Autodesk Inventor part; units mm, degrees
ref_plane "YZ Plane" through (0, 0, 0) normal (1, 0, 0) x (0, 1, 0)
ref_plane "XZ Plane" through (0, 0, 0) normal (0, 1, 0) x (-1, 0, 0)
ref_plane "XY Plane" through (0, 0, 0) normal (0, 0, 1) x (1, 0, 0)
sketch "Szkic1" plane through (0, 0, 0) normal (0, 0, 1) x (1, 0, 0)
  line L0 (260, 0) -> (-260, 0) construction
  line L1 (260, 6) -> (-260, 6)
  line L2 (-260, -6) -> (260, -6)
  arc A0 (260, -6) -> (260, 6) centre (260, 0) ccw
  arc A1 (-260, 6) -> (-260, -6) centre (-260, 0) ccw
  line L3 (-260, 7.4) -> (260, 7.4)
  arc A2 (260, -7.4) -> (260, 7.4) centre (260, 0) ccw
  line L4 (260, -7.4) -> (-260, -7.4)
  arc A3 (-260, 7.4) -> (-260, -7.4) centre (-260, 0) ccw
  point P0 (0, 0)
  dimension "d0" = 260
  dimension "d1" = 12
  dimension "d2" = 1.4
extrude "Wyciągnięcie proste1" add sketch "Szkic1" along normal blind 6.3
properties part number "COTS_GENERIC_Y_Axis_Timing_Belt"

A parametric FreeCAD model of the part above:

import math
import FreeCAD as App
import Part
import Sketcher

V = App.Vector
Q = App.Units.Quantity

doc = App.newDocument("Part")
params = doc.addObject("Spreadsheet::Sheet", "Params")
for row, (alias, value) in enumerate([
    ("sketch1_radius", "6 mm"),
    ("sketch1_radius2", "7.4 mm"),
    ("pad1_length", "6.3 mm"),
], start=1):
    params.set(f"A{row}", alias)
    params.set(f"B{row}", "=" + value)
    params.setAlias(f"B{row}", alias)

body = doc.addObject("PartDesign::Body", "Body")

# Sketch on XY plane
sketch1 = doc.addObject("Sketcher::SketchObject", "Sketch")
body.addObject(sketch1)
sketch1.AttachmentSupport = (doc.XY_Plane, [""])
sketch1.MapMode = "FlatFace"
sketch1.addGeometry([
    Part.LineSegment(V(260, 7, 0), V(-260, 7, 0)),  # 0
    Part.ArcOfCircle(Part.Circle(V(-260, 0, 0), V(0, 0, 1), 7), math.radians(90), math.radians(270)),  # 1
    Part.LineSegment(V(-260, -7, 0), V(260, -7, 0)),  # 2
    Part.ArcOfCircle(Part.Circle(V(260, 0, 0), V(0, 0, 1), 7), math.radians(-90), math.radians(90)),  # 3
    Part.LineSegment(V(-260, 6, 0), V(260, 6, 0)),  # 4
    Part.ArcOfCircle(Part.Circle(V(260, 0, 0), V(0, 0, 1), 6), math.radians(-90), math.radians(90)),  # 5
    Part.LineSegment(V(260, -6, 0), V(-260, -6, 0)),  # 6
    Part.ArcOfCircle(Part.Circle(V(-260, 0, 0), V(0, 0, 1), 6), math.radians(90), math.radians(270)),  # 7
], False)
sketch1.addConstraint([
    Sketcher.Constraint("Tangent", 0, 2, 1, 1),
    Sketcher.Constraint("Tangent", 1, 2, 2, 1),
    Sketcher.Constraint("Tangent", 2, 2, 3, 1),
    Sketcher.Constraint("Tangent", 3, 2, 0, 1),
    Sketcher.Constraint("Tangent", 4, 2, 5, 2),
    Sketcher.Constraint("Tangent", 5, 1, 6, 1),
    Sketcher.Constraint("Tangent", 6, 2, 7, 2),
    Sketcher.Constraint("Tangent", 7, 1, 4, 1),
    Sketcher.Constraint("Horizontal", 0),
    Sketcher.Constraint("Horizontal", 2),
    Sketcher.Constraint("Horizontal", 4),
    Sketcher.Constraint("Horizontal", 6),
    Sketcher.Constraint("Coincident", 5, 3, 3, 3),
    Sketcher.Constraint("Symmetric", 1, 3, 3, 3, -1, 1),
    Sketcher.Constraint("Vertical", 7, 3, 0, 2),
    Sketcher.Constraint("Radius", 5, Q("6 mm")),
    Sketcher.Constraint("DistanceX", 1, 3, -1, 1, Q("260 mm")),
    Sketcher.Constraint("Radius", 1, Q("7.4 mm")),
])
sketch1.setExpression("Constraints[15]", "Params.sketch1_radius")
sketch1.setExpression("Constraints[17]", "Params.sketch1_radius2")
pad1 = doc.addObject("PartDesign::Pad", "Pad")
body.addObject(pad1)
pad1.Profile = sketch1
pad1.setExpression("Length", "Params.pad1_length")

doc.recompute()
